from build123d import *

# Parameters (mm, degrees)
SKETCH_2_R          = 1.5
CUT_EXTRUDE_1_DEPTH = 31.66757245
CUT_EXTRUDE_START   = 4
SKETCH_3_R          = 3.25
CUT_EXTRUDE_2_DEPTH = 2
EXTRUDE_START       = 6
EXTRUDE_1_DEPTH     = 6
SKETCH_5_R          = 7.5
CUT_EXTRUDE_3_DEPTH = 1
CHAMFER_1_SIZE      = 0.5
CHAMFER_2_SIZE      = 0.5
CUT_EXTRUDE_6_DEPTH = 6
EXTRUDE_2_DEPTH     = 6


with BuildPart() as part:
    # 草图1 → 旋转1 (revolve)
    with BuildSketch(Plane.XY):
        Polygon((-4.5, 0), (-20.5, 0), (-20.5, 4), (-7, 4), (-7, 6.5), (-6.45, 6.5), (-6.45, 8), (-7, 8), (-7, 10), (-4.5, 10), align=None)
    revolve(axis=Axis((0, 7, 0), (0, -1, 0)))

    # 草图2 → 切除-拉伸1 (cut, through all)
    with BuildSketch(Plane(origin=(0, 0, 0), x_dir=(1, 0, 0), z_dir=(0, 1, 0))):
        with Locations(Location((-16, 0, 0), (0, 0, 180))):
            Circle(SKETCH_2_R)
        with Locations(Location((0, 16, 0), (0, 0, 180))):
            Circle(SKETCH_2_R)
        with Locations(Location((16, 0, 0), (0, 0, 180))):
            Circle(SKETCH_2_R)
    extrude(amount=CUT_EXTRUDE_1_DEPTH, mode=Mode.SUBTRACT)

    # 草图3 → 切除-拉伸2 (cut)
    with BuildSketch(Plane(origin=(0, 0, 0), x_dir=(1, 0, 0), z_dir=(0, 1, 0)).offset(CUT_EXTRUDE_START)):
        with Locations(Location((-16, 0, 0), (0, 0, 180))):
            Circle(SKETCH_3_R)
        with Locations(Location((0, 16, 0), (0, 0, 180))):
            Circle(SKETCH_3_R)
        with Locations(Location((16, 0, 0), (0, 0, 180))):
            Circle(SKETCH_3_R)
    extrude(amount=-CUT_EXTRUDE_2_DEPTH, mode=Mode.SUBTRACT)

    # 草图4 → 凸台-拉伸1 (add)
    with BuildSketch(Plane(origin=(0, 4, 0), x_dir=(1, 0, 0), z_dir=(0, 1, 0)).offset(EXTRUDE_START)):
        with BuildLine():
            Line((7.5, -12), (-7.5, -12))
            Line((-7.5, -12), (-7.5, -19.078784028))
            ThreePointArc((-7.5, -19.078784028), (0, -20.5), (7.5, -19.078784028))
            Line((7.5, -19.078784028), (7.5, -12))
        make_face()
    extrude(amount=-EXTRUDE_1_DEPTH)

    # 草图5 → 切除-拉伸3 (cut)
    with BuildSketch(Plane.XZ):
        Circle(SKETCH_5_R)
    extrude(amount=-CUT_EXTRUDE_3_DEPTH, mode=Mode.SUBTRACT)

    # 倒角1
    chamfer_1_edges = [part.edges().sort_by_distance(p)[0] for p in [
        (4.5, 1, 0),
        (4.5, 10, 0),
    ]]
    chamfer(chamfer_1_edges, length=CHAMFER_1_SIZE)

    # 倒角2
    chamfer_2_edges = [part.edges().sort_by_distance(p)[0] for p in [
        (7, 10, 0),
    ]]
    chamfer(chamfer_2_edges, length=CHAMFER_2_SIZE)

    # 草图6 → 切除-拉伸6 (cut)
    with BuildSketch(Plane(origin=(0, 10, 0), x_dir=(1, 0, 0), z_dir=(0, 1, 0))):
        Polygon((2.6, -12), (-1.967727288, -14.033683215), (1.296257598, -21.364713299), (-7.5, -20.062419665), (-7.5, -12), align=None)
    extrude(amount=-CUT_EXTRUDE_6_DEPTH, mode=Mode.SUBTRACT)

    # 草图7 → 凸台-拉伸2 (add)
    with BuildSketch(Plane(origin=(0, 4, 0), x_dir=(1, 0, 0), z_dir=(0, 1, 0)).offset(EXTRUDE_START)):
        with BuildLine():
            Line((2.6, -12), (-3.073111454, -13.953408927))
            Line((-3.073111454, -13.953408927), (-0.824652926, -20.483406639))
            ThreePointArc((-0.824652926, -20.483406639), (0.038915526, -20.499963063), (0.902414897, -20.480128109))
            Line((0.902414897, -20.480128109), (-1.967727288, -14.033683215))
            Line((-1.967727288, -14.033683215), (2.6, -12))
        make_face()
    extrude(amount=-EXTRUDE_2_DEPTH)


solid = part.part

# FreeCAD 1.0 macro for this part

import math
import FreeCAD as App
import Part
import Sketcher
from FreeCAD import Vector
Q = App.Units.Quantity


def edges_at(feature, points):
    """Names of the edges that pass closest to the given points."""
    edges = feature.Shape.Edges
    near = lambda p: min(range(len(edges)), key=lambda i: edges[i].distToShape(Part.Vertex(*p))[0])
    return sorted({f"Edge{near(p) + 1}" for p in points})


def add_polygon(sketch, points):
    """Adds a closed chain of lines whose ends are joined by coincident constraints."""
    first, n = sketch.GeometryCount, len(points)
    for a, b in zip(points, points[1:] + points[:1]):
        sketch.addGeometry(Part.LineSegment(App.Vector(*a, 0), App.Vector(*b, 0)), False)
    for i in range(n):
        sketch.addConstraint(Sketcher.Constraint("Coincident", first + i, 2, first + (i + 1) % n, 1))

doc = App.newDocument("Part")
body = doc.addObject("PartDesign::Body", "Body")

sketch1 = body.newObject("Sketcher::SketchObject", "Sketch")
sketch1.AttachmentSupport = (doc.getObject("XY_Plane"), [""])
sketch1.MapMode = "FlatFace"
add_polygon(sketch1, [(-20.5, 0), (-4.5, 0), (-4.5, 10), (-7, 10), (-7, 8), (-6.5, 8), (-6.5, 6.5), (-7, 6.5), (-7, 4), (-20.5, 4)])
sketch1.addConstraint(Sketcher.Constraint("Horizontal", 0))
sketch1.addConstraint(Sketcher.Constraint("Vertical", 1))
sketch1.addConstraint(Sketcher.Constraint("Horizontal", 2))
sketch1.addConstraint(Sketcher.Constraint("Vertical", 3))
sketch1.addConstraint(Sketcher.Constraint("Horizontal", 4))
sketch1.addConstraint(Sketcher.Constraint("Vertical", 5))
sketch1.addConstraint(Sketcher.Constraint("Horizontal", 6))
sketch1.addConstraint(Sketcher.Constraint("Vertical", 7))
sketch1.addConstraint(Sketcher.Constraint("Horizontal", 8))
sketch1.addConstraint(Sketcher.Constraint("Vertical", 9))
sketch1.addConstraint(Sketcher.Constraint("PointOnObject", 0, 2, -1))
sketch1.addConstraint(Sketcher.Constraint("Vertical", 3, 2, 6, 2))
sketch1.addConstraint(Sketcher.Constraint("Equal", 2, 7))
sketch1.addConstraint(Sketcher.Constraint("DistanceX", 0, 1, 0, 2, Q("16 mm")))
sketch1.addConstraint(Sketcher.Constraint("DistanceY", 1, 1, 1, 2, Q("10 mm")))
sketch1.addConstraint(Sketcher.Constraint("DistanceY", 3, 2, 3, 1, Q("2 mm")))
sketch1.addConstraint(Sketcher.Constraint("DistanceY", 9, 2, 9, 1, Q("4 mm")))
sketch1.addConstraint(Sketcher.Constraint("DistanceX", 2, 2, 2, 1, Q("2.5 mm")))
sketch1.addConstraint(Sketcher.Constraint("DistanceX", 2, 2, -1, 1, Q("7 mm")))
sketch1.addConstraint(Sketcher.Constraint("DistanceX", 4, 1, 4, 2, Q("0.55 mm")))
revolution = body.newObject("PartDesign::Revolution", "Revolution")
revolution.Profile = sketch1
revolution.ReferenceAxis = (sketch1, ["V_Axis"])
revolution.Angle = 360

sketch2 = body.newObject("Sketcher::SketchObject", "Sketch001")
sketch2.AttachmentSupport = (doc.getObject("XZ_Plane"), [""])
sketch2.MapMode = "FlatFace"
sketch2.addGeometry(Part.Circle(Vector(-16, 0, 0), Vector(0, 0, 1), 1.5), False)
sketch2.addGeometry(Part.Circle(Vector(0, -16, 0), Vector(0, 0, 1), 1.5), False)
sketch2.addGeometry(Part.Circle(Vector(16, 0, 0), Vector(0, 0, 1), 1.5), False)
sketch2.addConstraint(Sketcher.Constraint("Equal", 0, 1))
sketch2.addConstraint(Sketcher.Constraint("Equal", 1, 2))
sketch2.addConstraint(Sketcher.Constraint("Symmetric", 0, 3, 2, 3, -1, 1))
sketch2.addConstraint(Sketcher.Constraint("PointOnObject", 0, 3, -1))
sketch2.addConstraint(Sketcher.Constraint("PointOnObject", 1, 3, -2))
sketch2.addConstraint(Sketcher.Constraint("Diameter", 0, Q("3 mm")))
sketch2.addConstraint(Sketcher.Constraint("DistanceX", 0, 3, -1, 1, Q("16 mm")))
sketch2.addConstraint(Sketcher.Constraint("DistanceY", 1, 3, -1, 1, Q("16 mm")))
pocket1 = body.newObject("PartDesign::Pocket", "Pocket")
pocket1.Profile = sketch2
pocket1.Type = "ThroughAll"

sketch3 = body.newObject("Sketcher::SketchObject", "Sketch002")
sketch3.AttachmentSupport = (doc.getObject("XZ_Plane"), [""])
sketch3.MapMode = "FlatFace"
sketch3.AttachmentOffset = App.Placement(Vector(0, 0, -4), App.Rotation())
sketch3.addGeometry(Part.Circle(Vector(-16, 0, 0), Vector(0, 0, 1), 3.2), False)
sketch3.addGeometry(Part.Circle(Vector(0, -16, 0), Vector(0, 0, 1), 3.2), False)
sketch3.addGeometry(Part.Circle(Vector(16, 0, 0), Vector(0, 0, 1), 3.2), False)
sketch3.addConstraint(Sketcher.Constraint("Equal", 0, 1))
sketch3.addConstraint(Sketcher.Constraint("Equal", 1, 2))
sketch3.addConstraint(Sketcher.Constraint("Symmetric", 0, 3, 2, 3, -1, 1))
sketch3.addConstraint(Sketcher.Constraint("PointOnObject", 0, 3, -1))
sketch3.addConstraint(Sketcher.Constraint("PointOnObject", 1, 3, -2))
sketch3.addConstraint(Sketcher.Constraint("Diameter", 0, Q("6.5 mm")))
sketch3.addConstraint(Sketcher.Constraint("DistanceX", 0, 3, -1, 1, Q("16 mm")))
sketch3.addConstraint(Sketcher.Constraint("DistanceY", 1, 3, -1, 1, Q("16 mm")))
pocket2 = body.newObject("PartDesign::Pocket", "Pocket001")
pocket2.Profile = sketch3
pocket2.Length = 2
pocket2.Reversed = True

sketch4 = body.newObject("Sketcher::SketchObject", "Sketch003")
sketch4.AttachmentSupport = (doc.getObject("XZ_Plane"), [""])
sketch4.MapMode = "FlatFace"
sketch4.AttachmentOffset = App.Placement(Vector(0, 0, -10), App.Rotation())
sketch4.addGeometry(Part.LineSegment(Vector(8, 12, 0), Vector(-8, 12, 0)), False)
sketch4.addGeometry(Part.LineSegment(Vector(-8, 12, 0), Vector(-8, 19, 0)), False)
sketch4.addGeometry(Part.ArcOfCircle(Part.Circle(Vector(0, 0, 0), Vector(0, 0, 1), 20), math.radians(69), math.radians(111)), False)
sketch4.addGeometry(Part.LineSegment(Vector(8, 19, 0), Vector(8, 12, 0)), False)
sketch4.addConstraint(Sketcher.Constraint("Coincident", 0, 2, 1, 1))
sketch4.addConstraint(Sketcher.Constraint("Coincident", 1, 2, 2, 2))
sketch4.addConstraint(Sketcher.Constraint("Coincident", 2, 1, 3, 1))
sketch4.addConstraint(Sketcher.Constraint("Coincident", 3, 2, 0, 1))
sketch4.addConstraint(Sketcher.Constraint("Horizontal", 0))
sketch4.addConstraint(Sketcher.Constraint("Vertical", 1))
sketch4.addConstraint(Sketcher.Constraint("Vertical", 3))
sketch4.addConstraint(Sketcher.Constraint("Coincident", 2, 3, -1, 1))
sketch4.addConstraint(Sketcher.Constraint("Horizontal", 1, 2, 2, 1))
sketch4.addConstraint(Sketcher.Constraint("Radius", 2, Q("20.5 mm")))
sketch4.addConstraint(Sketcher.Constraint("DistanceX", 0, 2, 0, 1, Q("15 mm")))
sketch4.addConstraint(Sketcher.Constraint("DistanceY", -1, 1, 0, 2, Q("12 mm")))
pad1 = body.newObject("PartDesign::Pad", "Pad")
pad1.Profile = sketch4
pad1.Length = 6

sketch5 = body.newObject("Sketcher::SketchObject", "Sketch004")
sketch5.AttachmentSupport = (doc.getObject("XZ_Plane"), [""])
sketch5.MapMode = "FlatFace"
sketch5.addGeometry(Part.Circle(Vector(0, 0, 0), Vector(0, 0, 1), 8), False)
sketch5.addConstraint(Sketcher.Constraint("Coincident", 0, 3, -1, 1))
sketch5.addConstraint(Sketcher.Constraint("Diameter", 0, Q("15 mm")))
pocket3 = body.newObject("PartDesign::Pocket", "Pocket002")
pocket3.Profile = sketch5
pocket3.Length = 1
doc.recompute()

chamfer = body.newObject("PartDesign::Chamfer", "Chamfer")
chamfer.Base = (pocket3, edges_at(pocket3, [(4.5, 1, 0), (4.5, 10, 0)]))
chamfer.Size = 0.5
doc.recompute()

chamfer2 = body.newObject("PartDesign::Chamfer", "Chamfer001")
chamfer2.Base = (chamfer, edges_at(chamfer, [(7, 10, 0)]))
chamfer2.Size = 0.5

sketch6 = body.newObject("Sketcher::SketchObject", "Sketch005")
sketch6.AttachmentSupport = (doc.getObject("XZ_Plane"), [""])
sketch6.MapMode = "FlatFace"
sketch6.AttachmentOffset = App.Placement(Vector(0, 0, -10), App.Rotation())
add_polygon(sketch6, [(-2, 14), (2.6, 12), (-7.5, 12), (-7.5, 20.1), (1.3, 21.4)])
sketch6.addConstraint(Sketcher.Constraint("Horizontal", 1))
sketch6.addConstraint(Sketcher.Constraint("Vertical", 2))
sketch6.addConstraint(Sketcher.Constraint("Perpendicular", 0, 4))
sketch6.addConstraint(Sketcher.Constraint("Angle", 0, Q("-24 deg")))
sketch6.addConstraint(Sketcher.Constraint("Distance", 0, Q("5 mm")))
sketch6.addConstraint(Sketcher.Constraint("DistanceX", 1, 2, 1, 1, Q("10.1 mm")))
sketch6.addConstraint(Sketcher.Constraint("DistanceY", -1, 1, 0, 2, Q("12 mm")))
sketch6.addConstraint(Sketcher.Constraint("DistanceX", -1, 1, 0, 2, Q("2.6 mm")))
sketch6.addConstraint(Sketcher.Constraint("DistanceY", 2, 1, 2, 2, Q("8.06242 mm")))
sketch6.addConstraint(Sketcher.Constraint("Distance", 4, Q("8.024811 mm")))
pocket4 = body.newObject("PartDesign::Pocket", "Pocket003")
pocket4.Profile = sketch6
pocket4.Length = 6
pocket4.Reversed = True

sketch7 = body.newObject("Sketcher::SketchObject", "Sketch006")
sketch7.AttachmentSupport = (doc.getObject("XZ_Plane"), [""])
sketch7.MapMode = "FlatFace"
sketch7.AttachmentOffset = App.Placement(Vector(0, 0, -10), App.Rotation())
sketch7.addGeometry(Part.LineSegment(Vector(2.6, 12, 0), Vector(-3.1, 14, 0)), False)
sketch7.addGeometry(Part.LineSegment(Vector(-3.1, 14, 0), Vector(-0.8, 20.5, 0)), False)
sketch7.addGeometry(Part.ArcOfCircle(Part.Circle(Vector(0, 0, 0), Vector(0, 0, 1), 20.5), math.radians(87.48), math.radians(92.31)), False)
sketch7.addGeometry(Part.LineSegment(Vector(0.9, 20.5, 0), Vector(-2, 14, 0)), False)
sketch7.addGeometry(Part.LineSegment(Vector(-2, 14, 0), Vector(2.6, 12, 0)), False)
sketch7.addConstraint(Sketcher.Constraint("Coincident", 0, 2, 1, 1))
sketch7.addConstraint(Sketcher.Constraint("Coincident", 1, 2, 2, 2))
sketch7.addConstraint(Sketcher.Constraint("Coincident", 2, 1, 3, 1))
sketch7.addConstraint(Sketcher.Constraint("Coincident", 3, 2, 4, 1))
sketch7.addConstraint(Sketcher.Constraint("Coincident", 4, 2, 0, 1))
sketch7.addConstraint(Sketcher.Constraint("Coincident", 2, 3, -1, 1))
sketch7.addConstraint(Sketcher.Constraint("Perpendicular", 0, 1))
sketch7.addConstraint(Sketcher.Constraint("Perpendicular", 3, 4))
sketch7.addConstraint(Sketcher.Constraint("Radius", 2, Q("20.5 mm")))
sketch7.addConstraint(Sketcher.Constraint("Angle", 0, Q("161 deg")))
sketch7.addConstraint(Sketcher.Constraint("Angle", 3, Q("-114 deg")))
sketch7.addConstraint(Sketcher.Constraint("Distance", 0, Q("6 mm")))
sketch7.addConstraint(Sketcher.Constraint("Distance", 4, Q("5 mm")))
sketch7.addConstraint(Sketcher.Constraint("DistanceY", -1, 1, 4, 2, Q("12 mm")))
sketch7.addConstraint(Sketcher.Constraint("DistanceX", -1, 1, 4, 2, Q("2.6 mm")))
pad2 = body.newObject("PartDesign::Pad", "Pad001")
pad2.Profile = sketch7
pad2.Length = 6

doc.recompute()
